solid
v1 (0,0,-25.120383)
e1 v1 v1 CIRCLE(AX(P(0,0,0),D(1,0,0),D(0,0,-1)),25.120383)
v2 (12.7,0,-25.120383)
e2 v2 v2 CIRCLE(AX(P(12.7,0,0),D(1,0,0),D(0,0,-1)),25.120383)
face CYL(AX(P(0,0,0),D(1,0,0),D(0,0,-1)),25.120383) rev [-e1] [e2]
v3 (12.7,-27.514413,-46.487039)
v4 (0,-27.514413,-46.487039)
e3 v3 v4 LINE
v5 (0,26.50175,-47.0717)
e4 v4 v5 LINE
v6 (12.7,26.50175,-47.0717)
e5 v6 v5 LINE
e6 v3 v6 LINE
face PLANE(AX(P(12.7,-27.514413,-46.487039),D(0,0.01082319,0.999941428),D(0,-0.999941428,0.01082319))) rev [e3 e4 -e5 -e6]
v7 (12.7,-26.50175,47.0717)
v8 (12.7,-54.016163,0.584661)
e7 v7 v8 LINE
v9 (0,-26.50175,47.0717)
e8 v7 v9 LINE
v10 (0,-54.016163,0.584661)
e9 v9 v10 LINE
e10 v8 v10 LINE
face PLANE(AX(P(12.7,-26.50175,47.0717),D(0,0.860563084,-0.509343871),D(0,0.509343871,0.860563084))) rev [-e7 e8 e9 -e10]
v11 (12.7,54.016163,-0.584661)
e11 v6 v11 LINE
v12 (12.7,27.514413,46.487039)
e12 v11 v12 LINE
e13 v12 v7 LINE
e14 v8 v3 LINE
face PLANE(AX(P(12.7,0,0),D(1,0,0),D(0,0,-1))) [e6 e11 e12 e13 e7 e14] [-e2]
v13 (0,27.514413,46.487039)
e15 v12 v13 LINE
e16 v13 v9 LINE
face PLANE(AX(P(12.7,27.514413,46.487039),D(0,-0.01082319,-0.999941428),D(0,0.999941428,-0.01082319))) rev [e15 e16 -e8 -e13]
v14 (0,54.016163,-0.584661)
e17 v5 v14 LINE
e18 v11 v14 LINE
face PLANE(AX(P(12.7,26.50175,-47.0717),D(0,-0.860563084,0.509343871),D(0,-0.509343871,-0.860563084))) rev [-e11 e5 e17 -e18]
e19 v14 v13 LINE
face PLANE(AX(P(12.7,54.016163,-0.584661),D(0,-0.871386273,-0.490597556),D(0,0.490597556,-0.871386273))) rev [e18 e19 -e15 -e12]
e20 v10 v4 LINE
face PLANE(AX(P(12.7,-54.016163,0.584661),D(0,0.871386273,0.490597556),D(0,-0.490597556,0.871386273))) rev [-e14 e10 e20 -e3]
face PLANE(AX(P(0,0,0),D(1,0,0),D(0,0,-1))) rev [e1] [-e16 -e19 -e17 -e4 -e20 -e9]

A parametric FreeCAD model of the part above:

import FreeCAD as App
import Part
import Sketcher
from FreeCAD import Vector
Q = App.Units.Quantity


def add_polygon(sketch, points):
    """Adds a closed chain of lines whose ends are joined by coincident constraints."""
    first, n = sketch.GeometryCount, len(points)
    for a, b in zip(points, points[1:] + points[:1]):
        sketch.addGeometry(Part.LineSegment(App.Vector(*a, 0), App.Vector(*b, 0)), False)
    for i in range(n):
        sketch.addConstraint(Sketcher.Constraint("Coincident", first + i, 2, first + (i + 1) % n, 1))

doc = App.newDocument("Part")
body = doc.addObject("PartDesign::Body", "Body")

# Sketch on YZ plane
sketch1 = doc.addObject("Sketcher::SketchObject", "Sketch")
body.addObject(sketch1)
sketch1.AttachmentSupport = (doc.YZ_Plane, [""])
sketch1.MapMode = "FlatFace"
add_polygon(sketch1, [(-27, 47), (-54, 1), (-28, -46), (27, -47), (54, -1), (28, 46)])  # lines 0-5
sketch1.addConstraint([
    Sketcher.Constraint("Symmetric", 0, 2, 3, 2, -1, 1),
    Sketcher.Constraint("Symmetric", 1, 2, 4, 2, -1, 1),
    Sketcher.Constraint("Symmetric", 2, 2, 5, 2, -1, 1),
    Sketcher.Constraint("Equal", 0, 1),
    Sketcher.Constraint("Equal", 1, 2),
    Sketcher.Constraint("DistanceY", 2, 2, -1, 1, Q("47.0717 mm")),
    Sketcher.Constraint("DistanceY", 1, 2, 0, 2, Q("47.0717 mm")),
    Sketcher.Constraint("DistanceX", 5, 2, 2, 2, Q("53.0035 mm")),
    Sketcher.Constraint("DistanceY", -1, 1, 0, 2, Q("0.584661 mm")),
])
pad1 = doc.addObject("PartDesign::Pad", "Pad")
body.addObject(pad1)
pad1.Profile = sketch1
pad1.Length = Q("0.5 in")

# Sketch on YZ plane
sketch2 = doc.addObject("Sketcher::SketchObject", "Sketch001")
body.addObject(sketch2)
sketch2.AttachmentSupport = (doc.YZ_Plane, [""])
sketch2.MapMode = "FlatFace"
sketch2.AttachmentOffset = App.Placement(Vector(0, 0, 0.5 * 25.4), App.Rotation())
sketch2.addGeometry(Part.Circle(Vector(0, 0, 0), Vector(0, 0, 1), 25), False)
sketch2.addConstraint([
    Sketcher.Constraint("Coincident", 0, 3, -1, 1),
    Sketcher.Constraint("Diameter", 0, Q("50.240765 mm")),
])
pocket1 = doc.addObject("PartDesign::Pocket", "Pocket")
body.addObject(pocket1)
pocket1.Profile = sketch2
pocket1.Type = "ThroughAll"
pocket1.Midplane = True

doc.recompute()
